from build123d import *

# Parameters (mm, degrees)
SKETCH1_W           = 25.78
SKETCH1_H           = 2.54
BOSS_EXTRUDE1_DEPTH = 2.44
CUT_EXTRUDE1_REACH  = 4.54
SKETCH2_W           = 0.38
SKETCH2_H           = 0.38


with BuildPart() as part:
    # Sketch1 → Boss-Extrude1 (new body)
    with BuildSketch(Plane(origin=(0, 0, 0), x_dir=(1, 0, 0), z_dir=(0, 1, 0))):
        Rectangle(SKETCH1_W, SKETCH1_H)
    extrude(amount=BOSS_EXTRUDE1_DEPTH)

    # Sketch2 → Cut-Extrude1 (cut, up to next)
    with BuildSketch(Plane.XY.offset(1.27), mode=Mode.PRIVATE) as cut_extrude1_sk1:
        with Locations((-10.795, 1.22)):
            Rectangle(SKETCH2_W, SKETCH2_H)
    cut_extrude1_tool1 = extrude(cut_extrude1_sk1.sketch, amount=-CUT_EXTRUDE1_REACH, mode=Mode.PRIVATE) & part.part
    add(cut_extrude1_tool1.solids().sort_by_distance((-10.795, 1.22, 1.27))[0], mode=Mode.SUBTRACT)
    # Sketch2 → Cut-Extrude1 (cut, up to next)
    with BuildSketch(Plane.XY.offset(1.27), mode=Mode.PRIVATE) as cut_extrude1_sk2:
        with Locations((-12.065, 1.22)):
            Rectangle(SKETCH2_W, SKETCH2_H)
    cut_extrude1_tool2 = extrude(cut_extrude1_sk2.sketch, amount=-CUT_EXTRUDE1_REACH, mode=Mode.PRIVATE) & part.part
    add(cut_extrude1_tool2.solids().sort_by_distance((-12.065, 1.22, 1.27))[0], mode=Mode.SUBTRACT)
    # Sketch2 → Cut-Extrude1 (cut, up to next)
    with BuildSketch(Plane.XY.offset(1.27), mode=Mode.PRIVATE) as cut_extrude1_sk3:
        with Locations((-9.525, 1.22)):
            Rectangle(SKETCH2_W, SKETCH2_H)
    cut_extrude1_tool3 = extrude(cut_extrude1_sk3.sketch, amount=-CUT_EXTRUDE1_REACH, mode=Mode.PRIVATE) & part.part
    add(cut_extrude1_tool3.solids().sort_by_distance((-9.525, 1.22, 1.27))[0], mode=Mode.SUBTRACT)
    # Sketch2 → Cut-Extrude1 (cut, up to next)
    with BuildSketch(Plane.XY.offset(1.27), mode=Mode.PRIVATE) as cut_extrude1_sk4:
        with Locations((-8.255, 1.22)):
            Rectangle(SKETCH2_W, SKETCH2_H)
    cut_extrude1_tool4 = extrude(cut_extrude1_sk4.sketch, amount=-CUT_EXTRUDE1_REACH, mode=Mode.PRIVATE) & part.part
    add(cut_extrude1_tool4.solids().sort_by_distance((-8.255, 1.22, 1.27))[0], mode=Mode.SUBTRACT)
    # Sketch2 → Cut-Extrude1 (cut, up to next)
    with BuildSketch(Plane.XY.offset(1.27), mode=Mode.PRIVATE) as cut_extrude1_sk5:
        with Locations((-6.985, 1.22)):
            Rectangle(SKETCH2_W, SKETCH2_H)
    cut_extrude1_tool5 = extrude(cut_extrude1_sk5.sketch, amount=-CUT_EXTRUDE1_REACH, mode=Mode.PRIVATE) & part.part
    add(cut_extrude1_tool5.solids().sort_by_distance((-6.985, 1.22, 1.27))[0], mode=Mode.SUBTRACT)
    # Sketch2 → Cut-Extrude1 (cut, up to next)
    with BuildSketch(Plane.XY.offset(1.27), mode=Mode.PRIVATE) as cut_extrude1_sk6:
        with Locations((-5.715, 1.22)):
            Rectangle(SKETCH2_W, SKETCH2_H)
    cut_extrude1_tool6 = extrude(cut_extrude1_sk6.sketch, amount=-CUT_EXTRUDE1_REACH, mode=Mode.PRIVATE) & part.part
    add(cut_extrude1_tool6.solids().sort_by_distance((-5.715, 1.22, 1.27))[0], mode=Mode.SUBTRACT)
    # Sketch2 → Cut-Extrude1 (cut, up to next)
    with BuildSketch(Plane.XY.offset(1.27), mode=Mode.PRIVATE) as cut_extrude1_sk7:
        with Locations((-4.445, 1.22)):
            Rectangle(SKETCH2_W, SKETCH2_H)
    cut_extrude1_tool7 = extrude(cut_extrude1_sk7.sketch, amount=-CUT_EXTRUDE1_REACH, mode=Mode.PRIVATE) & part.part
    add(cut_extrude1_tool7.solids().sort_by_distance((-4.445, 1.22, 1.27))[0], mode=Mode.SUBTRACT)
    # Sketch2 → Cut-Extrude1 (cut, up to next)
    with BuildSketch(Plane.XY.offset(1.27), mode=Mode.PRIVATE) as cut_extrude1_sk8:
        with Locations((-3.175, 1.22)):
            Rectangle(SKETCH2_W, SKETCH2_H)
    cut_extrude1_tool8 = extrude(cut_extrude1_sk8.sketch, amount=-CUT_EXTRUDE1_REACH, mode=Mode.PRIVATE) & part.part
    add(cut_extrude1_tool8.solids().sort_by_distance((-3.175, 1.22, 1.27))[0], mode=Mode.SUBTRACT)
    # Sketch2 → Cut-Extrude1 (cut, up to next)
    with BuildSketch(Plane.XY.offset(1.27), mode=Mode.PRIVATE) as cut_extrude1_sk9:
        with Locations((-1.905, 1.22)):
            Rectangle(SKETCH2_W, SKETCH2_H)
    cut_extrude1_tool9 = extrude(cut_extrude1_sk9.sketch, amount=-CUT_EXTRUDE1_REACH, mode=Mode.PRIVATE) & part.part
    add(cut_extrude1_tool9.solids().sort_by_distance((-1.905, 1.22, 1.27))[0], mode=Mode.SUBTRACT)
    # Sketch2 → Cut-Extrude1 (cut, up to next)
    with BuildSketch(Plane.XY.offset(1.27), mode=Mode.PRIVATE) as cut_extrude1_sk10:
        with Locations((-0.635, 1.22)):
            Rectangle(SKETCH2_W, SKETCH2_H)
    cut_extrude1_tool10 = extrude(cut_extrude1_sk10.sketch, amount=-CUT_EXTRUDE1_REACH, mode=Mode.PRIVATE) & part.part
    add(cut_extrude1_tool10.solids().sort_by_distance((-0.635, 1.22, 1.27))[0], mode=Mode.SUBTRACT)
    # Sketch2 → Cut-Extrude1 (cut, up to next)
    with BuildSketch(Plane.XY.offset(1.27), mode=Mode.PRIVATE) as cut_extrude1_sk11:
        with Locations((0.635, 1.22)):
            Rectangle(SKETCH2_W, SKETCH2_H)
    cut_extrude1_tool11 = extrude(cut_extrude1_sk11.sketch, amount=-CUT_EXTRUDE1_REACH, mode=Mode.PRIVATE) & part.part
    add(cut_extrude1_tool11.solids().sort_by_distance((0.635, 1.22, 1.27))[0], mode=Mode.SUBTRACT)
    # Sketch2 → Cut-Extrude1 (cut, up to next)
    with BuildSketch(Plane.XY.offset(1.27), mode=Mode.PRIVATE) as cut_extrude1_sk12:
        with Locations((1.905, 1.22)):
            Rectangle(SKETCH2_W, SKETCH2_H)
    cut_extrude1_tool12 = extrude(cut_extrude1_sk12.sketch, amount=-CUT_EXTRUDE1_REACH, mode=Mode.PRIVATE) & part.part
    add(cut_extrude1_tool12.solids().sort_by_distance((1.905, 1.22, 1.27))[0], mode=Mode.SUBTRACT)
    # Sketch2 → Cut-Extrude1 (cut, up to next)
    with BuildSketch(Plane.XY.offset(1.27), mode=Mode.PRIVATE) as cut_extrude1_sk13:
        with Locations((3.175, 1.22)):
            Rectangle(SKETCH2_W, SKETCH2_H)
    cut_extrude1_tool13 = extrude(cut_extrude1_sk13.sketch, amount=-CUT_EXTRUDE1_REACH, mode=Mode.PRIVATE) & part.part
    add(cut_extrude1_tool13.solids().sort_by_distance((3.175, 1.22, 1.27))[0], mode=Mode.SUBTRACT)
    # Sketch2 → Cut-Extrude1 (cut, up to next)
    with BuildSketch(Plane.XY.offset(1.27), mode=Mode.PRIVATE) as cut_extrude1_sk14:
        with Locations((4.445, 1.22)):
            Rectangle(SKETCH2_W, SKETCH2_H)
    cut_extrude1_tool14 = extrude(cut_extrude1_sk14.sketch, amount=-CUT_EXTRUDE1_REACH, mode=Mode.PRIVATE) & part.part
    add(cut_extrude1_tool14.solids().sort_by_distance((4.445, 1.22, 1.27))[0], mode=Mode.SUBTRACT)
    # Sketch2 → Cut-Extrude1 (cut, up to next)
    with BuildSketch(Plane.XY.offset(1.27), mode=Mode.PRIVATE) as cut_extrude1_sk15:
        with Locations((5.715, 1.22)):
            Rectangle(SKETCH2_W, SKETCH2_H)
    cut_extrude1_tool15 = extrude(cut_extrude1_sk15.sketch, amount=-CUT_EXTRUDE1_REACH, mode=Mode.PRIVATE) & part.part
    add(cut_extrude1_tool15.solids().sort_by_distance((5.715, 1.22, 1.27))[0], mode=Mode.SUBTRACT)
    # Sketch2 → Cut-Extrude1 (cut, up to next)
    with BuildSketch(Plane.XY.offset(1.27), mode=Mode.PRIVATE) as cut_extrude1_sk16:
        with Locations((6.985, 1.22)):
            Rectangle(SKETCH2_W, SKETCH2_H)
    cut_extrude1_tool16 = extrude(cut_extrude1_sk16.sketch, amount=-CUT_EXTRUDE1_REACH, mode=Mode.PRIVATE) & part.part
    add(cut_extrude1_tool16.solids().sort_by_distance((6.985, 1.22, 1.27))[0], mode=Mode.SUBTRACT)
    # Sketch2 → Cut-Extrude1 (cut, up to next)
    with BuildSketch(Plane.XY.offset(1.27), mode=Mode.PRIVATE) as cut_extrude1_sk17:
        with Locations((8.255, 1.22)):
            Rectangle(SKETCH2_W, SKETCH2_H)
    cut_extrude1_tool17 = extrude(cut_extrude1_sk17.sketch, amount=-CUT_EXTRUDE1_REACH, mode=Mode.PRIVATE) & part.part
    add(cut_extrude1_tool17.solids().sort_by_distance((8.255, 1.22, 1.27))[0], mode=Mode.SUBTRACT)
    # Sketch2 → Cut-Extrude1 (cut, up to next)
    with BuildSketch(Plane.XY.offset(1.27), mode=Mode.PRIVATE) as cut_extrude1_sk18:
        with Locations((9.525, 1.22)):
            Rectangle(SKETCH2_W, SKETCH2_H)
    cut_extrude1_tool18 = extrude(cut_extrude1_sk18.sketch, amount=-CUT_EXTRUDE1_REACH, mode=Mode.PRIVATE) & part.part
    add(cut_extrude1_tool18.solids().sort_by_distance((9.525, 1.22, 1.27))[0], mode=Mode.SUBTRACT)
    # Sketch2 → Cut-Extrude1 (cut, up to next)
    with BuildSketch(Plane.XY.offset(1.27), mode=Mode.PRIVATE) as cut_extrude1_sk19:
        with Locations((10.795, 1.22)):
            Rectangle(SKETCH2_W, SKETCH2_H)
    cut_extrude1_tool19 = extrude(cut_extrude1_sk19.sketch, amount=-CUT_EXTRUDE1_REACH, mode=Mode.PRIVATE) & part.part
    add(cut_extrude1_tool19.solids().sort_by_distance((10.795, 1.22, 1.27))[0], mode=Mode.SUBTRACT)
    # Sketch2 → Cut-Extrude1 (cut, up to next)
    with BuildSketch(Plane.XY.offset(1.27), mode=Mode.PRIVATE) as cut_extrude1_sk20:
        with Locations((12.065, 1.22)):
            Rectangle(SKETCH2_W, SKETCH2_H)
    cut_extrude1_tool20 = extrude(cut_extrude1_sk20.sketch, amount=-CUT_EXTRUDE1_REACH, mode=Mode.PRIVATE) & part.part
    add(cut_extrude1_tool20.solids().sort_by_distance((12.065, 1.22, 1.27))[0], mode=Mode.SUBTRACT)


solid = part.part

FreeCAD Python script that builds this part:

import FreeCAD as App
import Part
import Sketcher
from FreeCAD import Vector
Q = App.Units.Quantity


def add_polygon(sketch, points):
    """Adds a closed chain of lines whose ends are joined by coincident constraints."""
    first, n = sketch.GeometryCount, len(points)
    for a, b in zip(points, points[1:] + points[:1]):
        sketch.addGeometry(Part.LineSegment(App.Vector(*a, 0), App.Vector(*b, 0)), False)
    for i in range(n):
        sketch.addConstraint(Sketcher.Constraint("Coincident", first + i, 2, first + (i + 1) % n, 1))

doc = App.newDocument("Part")
params = doc.addObject("Spreadsheet::Sheet", "Params")
for row, (alias, value) in enumerate([
    ("sketch1_height", "0.1 in"),
    ("pad1_length", "2.44 mm"),
], start=1):
    params.set(f"A{row}", alias)
    params.set(f"B{row}", "=" + value)
    params.setAlias(f"B{row}", alias)

body = doc.addObject("PartDesign::Body", "Body")

# Sketch on XZ plane
sketch1 = body.newObject("Sketcher::SketchObject", "Sketch")
sketch1.AttachmentSupport = (doc.getObject("XZ_Plane"), [""])
sketch1.MapMode = "FlatFace"
add_polygon(sketch1, [(-12.9, -1.3), (-12.9, 1.3), (12.9, 1.3), (12.9, -1.3)])  # lines 0-3
sketch1.addConstraint([
    Sketcher.Constraint("Vertical", 0),
    Sketcher.Constraint("Horizontal", 1),
    Sketcher.Constraint("Vertical", 2),
    Sketcher.Constraint("Horizontal", 3),
    Sketcher.Constraint("Symmetric", 0, 2, 2, 2, -1, 1),
    Sketcher.Constraint("DistanceY", 0, 1, 0, 2, Q("0.1 in")),
    Sketcher.Constraint("DistanceX", 1, 1, 1, 2, Q("25.78 mm")),
])
sketch1.setExpression("Constraints[9]", "Params.sketch1_height")
pad1 = body.newObject("PartDesign::Pad", "Pad")
pad1.Profile = sketch1
pad1.setExpression("Length", "Params.pad1_length")
pad1.Reversed = True

# Sketch on XY plane
sketch2 = body.newObject("Sketcher::SketchObject", "Sketch001")
sketch2.AttachmentSupport = (doc.getObject("XY_Plane"), [""])
sketch2.MapMode = "FlatFace"
sketch2.AttachmentOffset = App.Placement(Vector(0, 0, 0.05 * 25.4), App.Rotation())
add_polygon(sketch2, [(-10.98, 1.41), (-10.98, 1.03), (-10.61, 1.03), (-10.61, 1.41)])  # lines 0-3
sketch2.addConstraint([
    Sketcher.Constraint("Vertical", 0),
    Sketcher.Constraint("Horizontal", 1),
    Sketcher.Constraint("Vertical", 2),
    Sketcher.Constraint("Horizontal", 3),
    Sketcher.Constraint("Equal", 3, 0),
    Sketcher.Constraint("DistanceX", 1, 1, 1, 2, Q("0.38 mm")),
    Sketcher.Constraint("DistanceX", 0, 2, -1, 1, Q("10.985 mm")),
    Sketcher.Constraint("DistanceY", -1, 1, 0, 2, Q("1.03 mm")),
])
pocket1 = body.newObject("PartDesign::Pocket", "Pocket")
pocket1.Profile = sketch2
pocket1.Type = "UpToFirst"

# Sketch on XY plane
sketch3 = body.newObject("Sketcher::SketchObject", "Sketch002")
sketch3.AttachmentSupport = (doc.getObject("XY_Plane"), [""])
sketch3.MapMode = "FlatFace"
sketch3.AttachmentOffset = App.Placement(Vector(0, 0, 0.05 * 25.4), App.Rotation())
add_polygon(sketch3, [(-12.26, 1.41), (-12.26, 1.03), (-11.88, 1.03), (-11.88, 1.41)])  # lines 0-3
sketch3.addConstraint([
    Sketcher.Constraint("Vertical", 0),
    Sketcher.Constraint("Horizontal", 1),
    Sketcher.Constraint("Vertical", 2),
    Sketcher.Constraint("Horizontal", 3),
    Sketcher.Constraint("Equal", 3, 0),
    Sketcher.Constraint("DistanceX", 1, 1, 1, 2, Q("0.38 mm")),
    Sketcher.Constraint("DistanceX", 0, 2, -1, 1, Q("12.255 mm")),
    Sketcher.Constraint("DistanceY", -1, 1, 0, 2, Q("1.03 mm")),
])
pocket2 = body.newObject("PartDesign::Pocket", "Pocket001")
pocket2.Profile = sketch3
pocket2.Type = "UpToFirst"

# Sketch on XY plane
sketch4 = body.newObject("Sketcher::SketchObject", "Sketch003")
sketch4.AttachmentSupport = (doc.getObject("XY_Plane"), [""])
sketch4.MapMode = "FlatFace"
sketch4.AttachmentOffset = App.Placement(Vector(0, 0, 0.05 * 25.4), App.Rotation())
add_polygon(sketch4, [(-9.71, 1.41), (-9.71, 1.03), (-9.34, 1.03), (-9.34, 1.41)])  # lines 0-3
sketch4.addConstraint([
    Sketcher.Constraint("Vertical", 0),
    Sketcher.Constraint("Horizontal", 1),
    Sketcher.Constraint("Vertical", 2),
    Sketcher.Constraint("Horizontal", 3),
    Sketcher.Constraint("Equal", 3, 0),
    Sketcher.Constraint("DistanceX", 1, 1, 1, 2, Q("0.38 mm")),
    Sketcher.Constraint("DistanceX", 0, 2, -1, 1, Q("9.715 mm")),
    Sketcher.Constraint("DistanceY", -1, 1, 0, 2, Q("1.03 mm")),
])
pocket3 = body.newObject("PartDesign::Pocket", "Pocket002")
pocket3.Profile = sketch4
pocket3.Type = "UpToFirst"

# Sketch on XY plane
sketch5 = body.newObject("Sketcher::SketchObject", "Sketch004")
sketch5.AttachmentSupport = (doc.getObject("XY_Plane"), [""])
sketch5.MapMode = "FlatFace"
sketch5.AttachmentOffset = App.Placement(Vector(0, 0, 0.05 * 25.4), App.Rotation())
add_polygon(sketch5, [(-8.45, 1.41), (-8.45, 1.03), (-8.06, 1.03), (-8.06, 1.41)])  # lines 0-3
sketch5.addConstraint([
    Sketcher.Constraint("Vertical", 0),
    Sketcher.Constraint("Horizontal", 1),
    Sketcher.Constraint("Vertical", 2),
    Sketcher.Constraint("Horizontal", 3),
    Sketcher.Constraint("Equal", 3, 0),
    Sketcher.Constraint("DistanceX", 1, 1, 1, 2, Q("0.38 mm")),
    Sketcher.Constraint("DistanceX", 0, 2, -1, 1, Q("8.445 mm")),
    Sketcher.Constraint("DistanceY", -1, 1, 0, 2, Q("1.03 mm")),
])
pocket4 = body.newObject("PartDesign::Pocket", "Pocket003")
pocket4.Profile = sketch5
pocket4.Type = "UpToFirst"

# Sketch on XY plane
sketch6 = body.newObject("Sketcher::SketchObject", "Sketch005")
sketch6.AttachmentSupport = (doc.getObject("XY_Plane"), [""])
sketch6.MapMode = "FlatFace"
sketch6.AttachmentOffset = App.Placement(Vector(0, 0, 0.05 * 25.4), App.Rotation())
add_polygon(sketch6, [(-7.17, 1.41), (-7.17, 1.03), (-6.79, 1.03), (-6.79, 1.41)])  # lines 0-3
sketch6.addConstraint([
    Sketcher.Constraint("Vertical", 0),
    Sketcher.Constraint("Horizontal", 1),
    Sketcher.Constraint("Vertical", 2),
    Sketcher.Constraint("Horizontal", 3),
    Sketcher.Constraint("Equal", 3, 0),
    Sketcher.Constraint("DistanceX", 1, 1, 1, 2, Q("0.38 mm")),
    Sketcher.Constraint("DistanceX", 0, 2, -1, 1, Q("7.175 mm")),
    Sketcher.Constraint("DistanceY", -1, 1, 0, 2, Q("1.03 mm")),
])
pocket5 = body.newObject("PartDesign::Pocket", "Pocket004")
pocket5.Profile = sketch6
pocket5.Type = "UpToFirst"

# Sketch on XY plane
sketch7 = body.newObject("Sketcher::SketchObject", "Sketch006")
sketch7.AttachmentSupport = (doc.getObject("XY_Plane"), [""])
sketch7.MapMode = "FlatFace"
sketch7.AttachmentOffset = App.Placement(Vector(0, 0, 0.05 * 25.4), App.Rotation())
add_polygon(sketch7, [(-5.91, 1.41), (-5.91, 1.03), (-5.53, 1.03), (-5.53, 1.41)])  # lines 0-3
sketch7.addConstraint([
    Sketcher.Constraint("Vertical", 0),
    Sketcher.Constraint("Horizontal", 1),
    Sketcher.Constraint("Vertical", 2),
    Sketcher.Constraint("Horizontal", 3),
    Sketcher.Constraint("Equal", 3, 0),
    Sketcher.Constraint("DistanceX", 1, 1, 1, 2, Q("0.38 mm")),
    Sketcher.Constraint("DistanceX", 0, 2, -1, 1, Q("5.905 mm")),
    Sketcher.Constraint("DistanceY", -1, 1, 0, 2, Q("1.03 mm")),
])
pocket6 = body.newObject("PartDesign::Pocket", "Pocket005")
pocket6.Profile = sketch7
pocket6.Type = "UpToFirst"

# Sketch on XY plane
sketch8 = body.newObject("Sketcher::SketchObject", "Sketch007")
sketch8.AttachmentSupport = (doc.getObject("XY_Plane"), [""])
sketch8.MapMode = "FlatFace"
sketch8.AttachmentOffset = App.Placement(Vector(0, 0, 0.05 * 25.4), App.Rotation())
add_polygon(sketch8, [(-4.63, 1.41), (-4.63, 1.03), (-4.25, 1.03), (-4.25, 1.41)])  # lines 0-3
sketch8.addConstraint([
    Sketcher.Constraint("Vertical", 0),
    Sketcher.Constraint("Horizontal", 1),
    Sketcher.Constraint("Vertical", 2),
    Sketcher.Constraint("Horizontal", 3),
    Sketcher.Constraint("Equal", 3, 0),
    Sketcher.Constraint("DistanceX", 1, 1, 1, 2, Q("0.38 mm")),
    Sketcher.Constraint("DistanceX", 0, 2, -1, 1, Q("4.635 mm")),
    Sketcher.Constraint("DistanceY", -1, 1, 0, 2, Q("1.03 mm")),
])
pocket7 = body.newObject("PartDesign::Pocket", "Pocket006")
pocket7.Profile = sketch8
pocket7.Type = "UpToFirst"

# Sketch on XY plane
sketch9 = body.newObject("Sketcher::SketchObject", "Sketch008")
sketch9.AttachmentSupport = (doc.getObject("XY_Plane"), [""])
sketch9.MapMode = "FlatFace"
sketch9.AttachmentOffset = App.Placement(Vector(0, 0, 0.05 * 25.4), App.Rotation())
add_polygon(sketch9, [(-3.37, 1.41), (-3.37, 1.03), (-2.98, 1.03), (-2.98, 1.41)])  # lines 0-3
sketch9.addConstraint([
    Sketcher.Constraint("Vertical", 0),
    Sketcher.Constraint("Horizontal", 1),
    Sketcher.Constraint("Vertical", 2),
    Sketcher.Constraint("Horizontal", 3),
    Sketcher.Constraint("Equal", 3, 0),
    Sketcher.Constraint("DistanceX", 1, 1, 1, 2, Q("0.38 mm")),
    Sketcher.Constraint("DistanceX", 0, 2, -1, 1, Q("3.365 mm")),
    Sketcher.Constraint("DistanceY", -1, 1, 0, 2, Q("1.03 mm")),
])
pocket8 = body.newObject("PartDesign::Pocket", "Pocket007")
pocket8.Profile = sketch9
pocket8.Type = "UpToFirst"

# Sketch on XY plane
sketch10 = body.newObject("Sketcher::SketchObject", "Sketch009")
sketch10.AttachmentSupport = (doc.getObject("XY_Plane"), [""])
sketch10.MapMode = "FlatFace"
sketch10.AttachmentOffset = App.Placement(Vector(0, 0, 0.05 * 25.4), App.Rotation())
add_polygon(sketch10, [(-2.1, 1.41), (-2.1, 1.03), (-1.72, 1.03), (-1.72, 1.41)])  # lines 0-3
sketch10.addConstraint([
    Sketcher.Constraint("Vertical", 0),
    Sketcher.Constraint("Horizontal", 1),
    Sketcher.Constraint("Vertical", 2),
    Sketcher.Constraint("Horizontal", 3),
    Sketcher.Constraint("Equal", 3, 0),
    Sketcher.Constraint("DistanceX", 1, 1, 1, 2, Q("0.38 mm")),
    Sketcher.Constraint("DistanceX", 0, 2, -1, 1, Q("2.095 mm")),
    Sketcher.Constraint("DistanceY", -1, 1, 0, 2, Q("1.03 mm")),
])
pocket9 = body.newObject("PartDesign::Pocket", "Pocket008")
pocket9.Profile = sketch10
pocket9.Type = "UpToFirst"

# Sketch on XY plane
sketch11 = body.newObject("Sketcher::SketchObject", "Sketch010")
sketch11.AttachmentSupport = (doc.getObject("XY_Plane"), [""])
sketch11.MapMode = "FlatFace"
sketch11.AttachmentOffset = App.Placement(Vector(0, 0, 0.05 * 25.4), App.Rotation())
add_polygon(sketch11, [(-0.82, 1.41), (-0.82, 1.03), (-0.45, 1.03), (-0.45, 1.41)])  # lines 0-3
sketch11.addConstraint([
    Sketcher.Constraint("Vertical", 0),
    Sketcher.Constraint("Horizontal", 1),
    Sketcher.Constraint("Vertical", 2),
    Sketcher.Constraint("Horizontal", 3),
    Sketcher.Constraint("Equal", 3, 0),
    Sketcher.Constraint("DistanceX", 1, 1, 1, 2, Q("0.38 mm")),
    Sketcher.Constraint("DistanceX", 0, 2, -1, 1, Q("0.825 mm")),
    Sketcher.Constraint("DistanceY", -1, 1, 0, 2, Q("1.03 mm")),
])
pocket10 = body.newObject("PartDesign::Pocket", "Pocket009")
pocket10.Profile = sketch11
pocket10.Type = "UpToFirst"

# Sketch on XY plane
sketch12 = body.newObject("Sketcher::SketchObject", "Sketch011")
sketch12.AttachmentSupport = (doc.getObject("XY_Plane"), [""])
sketch12.MapMode = "FlatFace"
sketch12.AttachmentOffset = App.Placement(Vector(0, 0, 0.05 * 25.4), App.Rotation())
add_polygon(sketch12, [(0.45, 1.41), (0.45, 1.03), (0.82, 1.03), (0.82, 1.41)])  # lines 0-3
sketch12.addConstraint([
    Sketcher.Constraint("Vertical", 0),
    Sketcher.Constraint("Horizontal", 1),
    Sketcher.Constraint("Vertical", 2),
    Sketcher.Constraint("Horizontal", 3),
    Sketcher.Constraint("Equal", 3, 0),
    Sketcher.Constraint("DistanceX", 1, 1, 1, 2, Q("0.38 mm")),
    Sketcher.Constraint("DistanceX", -1, 1, 0, 2, Q("0.445 mm")),
    Sketcher.Constraint("DistanceY", -1, 1, 0, 2, Q("1.03 mm")),
])
pocket11 = body.newObject("PartDesign::Pocket", "Pocket010")
pocket11.Profile = sketch12
pocket11.Type = "UpToFirst"

# Sketch on XY plane
sketch13 = body.newObject("Sketcher::SketchObject", "Sketch012")
sketch13.AttachmentSupport = (doc.getObject("XY_Plane"), [""])
sketch13.MapMode = "FlatFace"
sketch13.AttachmentOffset = App.Placement(Vector(0, 0, 0.05 * 25.4), App.Rotation())
add_polygon(sketch13, [(1.72, 1.41), (1.72, 1.03), (2.1, 1.03), (2.1, 1.41)])  # lines 0-3
sketch13.addConstraint([
    Sketcher.Constraint("Vertical", 0),
    Sketcher.Constraint("Horizontal", 1),
    Sketcher.Constraint("Vertical", 2),
    Sketcher.Constraint("Horizontal", 3),
    Sketcher.Constraint("Equal", 3, 0),
    Sketcher.Constraint("DistanceX", 1, 1, 1, 2, Q("0.38 mm")),
    Sketcher.Constraint("DistanceX", -1, 1, 0, 2, Q("1.715 mm")),
    Sketcher.Constraint("DistanceY", -1, 1, 0, 2, Q("1.03 mm")),
])
pocket12 = body.newObject("PartDesign::Pocket", "Pocket011")
pocket12.Profile = sketch13
pocket12.Type = "UpToFirst"

# Sketch on XY plane
sketch14 = body.newObject("Sketcher::SketchObject", "Sketch013")
sketch14.AttachmentSupport = (doc.getObject("XY_Plane"), [""])
sketch14.MapMode = "FlatFace"
sketch14.AttachmentOffset = App.Placement(Vector(0, 0, 0.05 * 25.4), App.Rotation())
add_polygon(sketch14, [(2.98, 1.41), (2.98, 1.03), (3.37, 1.03), (3.37, 1.41)])  # lines 0-3
sketch14.addConstraint([
    Sketcher.Constraint("Vertical", 0),
    Sketcher.Constraint("Horizontal", 1),
    Sketcher.Constraint("Vertical", 2),
    Sketcher.Constraint("Horizontal", 3),
    Sketcher.Constraint("Equal", 3, 0),
    Sketcher.Constraint("DistanceX", 1, 1, 1, 2, Q("0.38 mm")),
    Sketcher.Constraint("DistanceX", -1, 1, 0, 2, Q("2.985 mm")),
    Sketcher.Constraint("DistanceY", -1, 1, 0, 2, Q("1.03 mm")),
])
pocket13 = body.newObject("PartDesign::Pocket", "Pocket012")
pocket13.Profile = sketch14
pocket13.Type = "UpToFirst"

# Sketch on XY plane
sketch15 = body.newObject("Sketcher::SketchObject", "Sketch014")
sketch15.AttachmentSupport = (doc.getObject("XY_Plane"), [""])
sketch15.MapMode = "FlatFace"
sketch15.AttachmentOffset = App.Placement(Vector(0, 0, 0.05 * 25.4), App.Rotation())
add_polygon(sketch15, [(4.25, 1.41), (4.25, 1.03), (4.63, 1.03), (4.63, 1.41)])  # lines 0-3
sketch15.addConstraint([
    Sketcher.Constraint("Vertical", 0),
    Sketcher.Constraint("Horizontal", 1),
    Sketcher.Constraint("Vertical", 2),
    Sketcher.Constraint("Horizontal", 3),
    Sketcher.Constraint("Equal", 3, 0),
    Sketcher.Constraint("DistanceX", 1, 1, 1, 2, Q("0.38 mm")),
    Sketcher.Constraint("DistanceX", -1, 1, 0, 2, Q("4.255 mm")),
    Sketcher.Constraint("DistanceY", -1, 1, 0, 2, Q("1.03 mm")),
])
pocket14 = body.newObject("PartDesign::Pocket", "Pocket013")
pocket14.Profile = sketch15
pocket14.Type = "UpToFirst"

# Sketch on XY plane
sketch16 = body.newObject("Sketcher::SketchObject", "Sketch015")
sketch16.AttachmentSupport = (doc.getObject("XY_Plane"), [""])
sketch16.MapMode = "FlatFace"
sketch16.AttachmentOffset = App.Placement(Vector(0, 0, 0.05 * 25.4), App.Rotation())
add_polygon(sketch16, [(5.53, 1.41), (5.53, 1.03), (5.91, 1.03), (5.91, 1.41)])  # lines 0-3
sketch16.addConstraint([
    Sketcher.Constraint("Vertical", 0),
    Sketcher.Constraint("Horizontal", 1),
    Sketcher.Constraint("Vertical", 2),
    Sketcher.Constraint("Horizontal", 3),
    Sketcher.Constraint("Equal", 3, 0),
    Sketcher.Constraint("DistanceX", 1, 1, 1, 2, Q("0.38 mm")),
    Sketcher.Constraint("DistanceX", -1, 1, 0, 2, Q("5.525 mm")),
    Sketcher.Constraint("DistanceY", -1, 1, 0, 2, Q("1.03 mm")),
])
pocket15 = body.newObject("PartDesign::Pocket", "Pocket014")
pocket15.Profile = sketch16
pocket15.Type = "UpToFirst"

# Sketch on XY plane
sketch17 = body.newObject("Sketcher::SketchObject", "Sketch016")
sketch17.AttachmentSupport = (doc.getObject("XY_Plane"), [""])
sketch17.MapMode = "FlatFace"
sketch17.AttachmentOffset = App.Placement(Vector(0, 0, 0.05 * 25.4), App.Rotation())
add_polygon(sketch17, [(6.79, 1.41), (6.79, 1.03), (7.17, 1.03), (7.17, 1.41)])  # lines 0-3
sketch17.addConstraint([
    Sketcher.Constraint("Vertical", 0),
    Sketcher.Constraint("Horizontal", 1),
    Sketcher.Constraint("Vertical", 2),
    Sketcher.Constraint("Horizontal", 3),
    Sketcher.Constraint("Equal", 3, 0),
    Sketcher.Constraint("DistanceX", 1, 1, 1, 2, Q("0.38 mm")),
    Sketcher.Constraint("DistanceX", -1, 1, 0, 2, Q("6.795 mm")),
    Sketcher.Constraint("DistanceY", -1, 1, 0, 2, Q("1.03 mm")),
])
pocket16 = body.newObject("PartDesign::Pocket", "Pocket015")
pocket16.Profile = sketch17
pocket16.Type = "UpToFirst"

# Sketch on XY plane
sketch18 = body.newObject("Sketcher::SketchObject", "Sketch017")
sketch18.AttachmentSupport = (doc.getObject("XY_Plane"), [""])
sketch18.MapMode = "FlatFace"
sketch18.AttachmentOffset = App.Placement(Vector(0, 0, 0.05 * 25.4), App.Rotation())
add_polygon(sketch18, [(8.06, 1.41), (8.06, 1.03), (8.45, 1.03), (8.45, 1.41)])  # lines 0-3
sketch18.addConstraint([
    Sketcher.Constraint("Vertical", 0),
    Sketcher.Constraint("Horizontal", 1),
    Sketcher.Constraint("Vertical", 2),
    Sketcher.Constraint("Horizontal", 3),
    Sketcher.Constraint("Equal", 3, 0),
    Sketcher.Constraint("DistanceX", 1, 1, 1, 2, Q("0.38 mm")),
    Sketcher.Constraint("DistanceX", -1, 1, 0, 2, Q("8.065 mm")),
    Sketcher.Constraint("DistanceY", -1, 1, 0, 2, Q("1.03 mm")),
])
pocket17 = body.newObject("PartDesign::Pocket", "Pocket016")
pocket17.Profile = sketch18
pocket17.Type = "UpToFirst"

# Sketch on XY plane
sketch19 = body.newObject("Sketcher::SketchObject", "Sketch018")
sketch19.AttachmentSupport = (doc.getObject("XY_Plane"), [""])
sketch19.MapMode = "FlatFace"
sketch19.AttachmentOffset = App.Placement(Vector(0, 0, 0.05 * 25.4), App.Rotation())
add_polygon(sketch19, [(9.34, 1.41), (9.34, 1.03), (9.71, 1.03), (9.71, 1.41)])  # lines 0-3
sketch19.addConstraint([
    Sketcher.Constraint("Vertical", 0),
    Sketcher.Constraint("Horizontal", 1),
    Sketcher.Constraint("Vertical", 2),
    Sketcher.Constraint("Horizontal", 3),
    Sketcher.Constraint("Equal", 3, 0),
    Sketcher.Constraint("DistanceX", 1, 1, 1, 2, Q("0.38 mm")),
    Sketcher.Constraint("DistanceX", -1, 1, 0, 2, Q("9.335 mm")),
    Sketcher.Constraint("DistanceY", -1, 1, 0, 2, Q("1.03 mm")),
])
pocket18 = body.newObject("PartDesign::Pocket", "Pocket017")
pocket18.Profile = sketch19
pocket18.Type = "UpToFirst"

# Sketch on XY plane
sketch20 = body.newObject("Sketcher::SketchObject", "Sketch019")
sketch20.AttachmentSupport = (doc.getObject("XY_Plane"), [""])
sketch20.MapMode = "FlatFace"
sketch20.AttachmentOffset = App.Placement(Vector(0, 0, 0.05 * 25.4), App.Rotation())
add_polygon(sketch20, [(10.61, 1.41), (10.61, 1.03), (10.98, 1.03), (10.98, 1.41)])  # lines 0-3
sketch20.addConstraint([
    Sketcher.Constraint("Vertical", 0),
    Sketcher.Constraint("Horizontal", 1),
    Sketcher.Constraint("Vertical", 2),
    Sketcher.Constraint("Horizontal", 3),
    Sketcher.Constraint("Equal", 3, 0),
    Sketcher.Constraint("DistanceX", 1, 1, 1, 2, Q("0.38 mm")),
    Sketcher.Constraint("DistanceX", -1, 1, 0, 2, Q("10.605 mm")),
    Sketcher.Constraint("DistanceY", -1, 1, 0, 2, Q("1.03 mm")),
])
pocket19 = body.newObject("PartDesign::Pocket", "Pocket018")
pocket19.Profile = sketch20
pocket19.Type = "UpToFirst"

# Sketch on XY plane
sketch21 = body.newObject("Sketcher::SketchObject", "Sketch020")
sketch21.AttachmentSupport = (doc.getObject("XY_Plane"), [""])
sketch21.MapMode = "FlatFace"
sketch21.AttachmentOffset = App.Placement(Vector(0, 0, 0.05 * 25.4), App.Rotation())
add_polygon(sketch21, [(11.88, 1.41), (11.88, 1.03), (12.26, 1.03), (12.26, 1.41)])  # lines 0-3
sketch21.addConstraint([
    Sketcher.Constraint("Vertical", 0),
    Sketcher.Constraint("Horizontal", 1),
    Sketcher.Constraint("Vertical", 2),
    Sketcher.Constraint("Horizontal", 3),
    Sketcher.Constraint("Equal", 3, 0),
    Sketcher.Constraint("DistanceX", 1, 1, 1, 2, Q("0.38 mm")),
    Sketcher.Constraint("DistanceX", -1, 1, 0, 2, Q("11.875 mm")),
    Sketcher.Constraint("DistanceY", -1, 1, 0, 2, Q("1.03 mm")),
])
pocket20 = body.newObject("PartDesign::Pocket", "Pocket019")
pocket20.Profile = sketch21
pocket20.Type = "UpToFirst"

doc.recompute()
